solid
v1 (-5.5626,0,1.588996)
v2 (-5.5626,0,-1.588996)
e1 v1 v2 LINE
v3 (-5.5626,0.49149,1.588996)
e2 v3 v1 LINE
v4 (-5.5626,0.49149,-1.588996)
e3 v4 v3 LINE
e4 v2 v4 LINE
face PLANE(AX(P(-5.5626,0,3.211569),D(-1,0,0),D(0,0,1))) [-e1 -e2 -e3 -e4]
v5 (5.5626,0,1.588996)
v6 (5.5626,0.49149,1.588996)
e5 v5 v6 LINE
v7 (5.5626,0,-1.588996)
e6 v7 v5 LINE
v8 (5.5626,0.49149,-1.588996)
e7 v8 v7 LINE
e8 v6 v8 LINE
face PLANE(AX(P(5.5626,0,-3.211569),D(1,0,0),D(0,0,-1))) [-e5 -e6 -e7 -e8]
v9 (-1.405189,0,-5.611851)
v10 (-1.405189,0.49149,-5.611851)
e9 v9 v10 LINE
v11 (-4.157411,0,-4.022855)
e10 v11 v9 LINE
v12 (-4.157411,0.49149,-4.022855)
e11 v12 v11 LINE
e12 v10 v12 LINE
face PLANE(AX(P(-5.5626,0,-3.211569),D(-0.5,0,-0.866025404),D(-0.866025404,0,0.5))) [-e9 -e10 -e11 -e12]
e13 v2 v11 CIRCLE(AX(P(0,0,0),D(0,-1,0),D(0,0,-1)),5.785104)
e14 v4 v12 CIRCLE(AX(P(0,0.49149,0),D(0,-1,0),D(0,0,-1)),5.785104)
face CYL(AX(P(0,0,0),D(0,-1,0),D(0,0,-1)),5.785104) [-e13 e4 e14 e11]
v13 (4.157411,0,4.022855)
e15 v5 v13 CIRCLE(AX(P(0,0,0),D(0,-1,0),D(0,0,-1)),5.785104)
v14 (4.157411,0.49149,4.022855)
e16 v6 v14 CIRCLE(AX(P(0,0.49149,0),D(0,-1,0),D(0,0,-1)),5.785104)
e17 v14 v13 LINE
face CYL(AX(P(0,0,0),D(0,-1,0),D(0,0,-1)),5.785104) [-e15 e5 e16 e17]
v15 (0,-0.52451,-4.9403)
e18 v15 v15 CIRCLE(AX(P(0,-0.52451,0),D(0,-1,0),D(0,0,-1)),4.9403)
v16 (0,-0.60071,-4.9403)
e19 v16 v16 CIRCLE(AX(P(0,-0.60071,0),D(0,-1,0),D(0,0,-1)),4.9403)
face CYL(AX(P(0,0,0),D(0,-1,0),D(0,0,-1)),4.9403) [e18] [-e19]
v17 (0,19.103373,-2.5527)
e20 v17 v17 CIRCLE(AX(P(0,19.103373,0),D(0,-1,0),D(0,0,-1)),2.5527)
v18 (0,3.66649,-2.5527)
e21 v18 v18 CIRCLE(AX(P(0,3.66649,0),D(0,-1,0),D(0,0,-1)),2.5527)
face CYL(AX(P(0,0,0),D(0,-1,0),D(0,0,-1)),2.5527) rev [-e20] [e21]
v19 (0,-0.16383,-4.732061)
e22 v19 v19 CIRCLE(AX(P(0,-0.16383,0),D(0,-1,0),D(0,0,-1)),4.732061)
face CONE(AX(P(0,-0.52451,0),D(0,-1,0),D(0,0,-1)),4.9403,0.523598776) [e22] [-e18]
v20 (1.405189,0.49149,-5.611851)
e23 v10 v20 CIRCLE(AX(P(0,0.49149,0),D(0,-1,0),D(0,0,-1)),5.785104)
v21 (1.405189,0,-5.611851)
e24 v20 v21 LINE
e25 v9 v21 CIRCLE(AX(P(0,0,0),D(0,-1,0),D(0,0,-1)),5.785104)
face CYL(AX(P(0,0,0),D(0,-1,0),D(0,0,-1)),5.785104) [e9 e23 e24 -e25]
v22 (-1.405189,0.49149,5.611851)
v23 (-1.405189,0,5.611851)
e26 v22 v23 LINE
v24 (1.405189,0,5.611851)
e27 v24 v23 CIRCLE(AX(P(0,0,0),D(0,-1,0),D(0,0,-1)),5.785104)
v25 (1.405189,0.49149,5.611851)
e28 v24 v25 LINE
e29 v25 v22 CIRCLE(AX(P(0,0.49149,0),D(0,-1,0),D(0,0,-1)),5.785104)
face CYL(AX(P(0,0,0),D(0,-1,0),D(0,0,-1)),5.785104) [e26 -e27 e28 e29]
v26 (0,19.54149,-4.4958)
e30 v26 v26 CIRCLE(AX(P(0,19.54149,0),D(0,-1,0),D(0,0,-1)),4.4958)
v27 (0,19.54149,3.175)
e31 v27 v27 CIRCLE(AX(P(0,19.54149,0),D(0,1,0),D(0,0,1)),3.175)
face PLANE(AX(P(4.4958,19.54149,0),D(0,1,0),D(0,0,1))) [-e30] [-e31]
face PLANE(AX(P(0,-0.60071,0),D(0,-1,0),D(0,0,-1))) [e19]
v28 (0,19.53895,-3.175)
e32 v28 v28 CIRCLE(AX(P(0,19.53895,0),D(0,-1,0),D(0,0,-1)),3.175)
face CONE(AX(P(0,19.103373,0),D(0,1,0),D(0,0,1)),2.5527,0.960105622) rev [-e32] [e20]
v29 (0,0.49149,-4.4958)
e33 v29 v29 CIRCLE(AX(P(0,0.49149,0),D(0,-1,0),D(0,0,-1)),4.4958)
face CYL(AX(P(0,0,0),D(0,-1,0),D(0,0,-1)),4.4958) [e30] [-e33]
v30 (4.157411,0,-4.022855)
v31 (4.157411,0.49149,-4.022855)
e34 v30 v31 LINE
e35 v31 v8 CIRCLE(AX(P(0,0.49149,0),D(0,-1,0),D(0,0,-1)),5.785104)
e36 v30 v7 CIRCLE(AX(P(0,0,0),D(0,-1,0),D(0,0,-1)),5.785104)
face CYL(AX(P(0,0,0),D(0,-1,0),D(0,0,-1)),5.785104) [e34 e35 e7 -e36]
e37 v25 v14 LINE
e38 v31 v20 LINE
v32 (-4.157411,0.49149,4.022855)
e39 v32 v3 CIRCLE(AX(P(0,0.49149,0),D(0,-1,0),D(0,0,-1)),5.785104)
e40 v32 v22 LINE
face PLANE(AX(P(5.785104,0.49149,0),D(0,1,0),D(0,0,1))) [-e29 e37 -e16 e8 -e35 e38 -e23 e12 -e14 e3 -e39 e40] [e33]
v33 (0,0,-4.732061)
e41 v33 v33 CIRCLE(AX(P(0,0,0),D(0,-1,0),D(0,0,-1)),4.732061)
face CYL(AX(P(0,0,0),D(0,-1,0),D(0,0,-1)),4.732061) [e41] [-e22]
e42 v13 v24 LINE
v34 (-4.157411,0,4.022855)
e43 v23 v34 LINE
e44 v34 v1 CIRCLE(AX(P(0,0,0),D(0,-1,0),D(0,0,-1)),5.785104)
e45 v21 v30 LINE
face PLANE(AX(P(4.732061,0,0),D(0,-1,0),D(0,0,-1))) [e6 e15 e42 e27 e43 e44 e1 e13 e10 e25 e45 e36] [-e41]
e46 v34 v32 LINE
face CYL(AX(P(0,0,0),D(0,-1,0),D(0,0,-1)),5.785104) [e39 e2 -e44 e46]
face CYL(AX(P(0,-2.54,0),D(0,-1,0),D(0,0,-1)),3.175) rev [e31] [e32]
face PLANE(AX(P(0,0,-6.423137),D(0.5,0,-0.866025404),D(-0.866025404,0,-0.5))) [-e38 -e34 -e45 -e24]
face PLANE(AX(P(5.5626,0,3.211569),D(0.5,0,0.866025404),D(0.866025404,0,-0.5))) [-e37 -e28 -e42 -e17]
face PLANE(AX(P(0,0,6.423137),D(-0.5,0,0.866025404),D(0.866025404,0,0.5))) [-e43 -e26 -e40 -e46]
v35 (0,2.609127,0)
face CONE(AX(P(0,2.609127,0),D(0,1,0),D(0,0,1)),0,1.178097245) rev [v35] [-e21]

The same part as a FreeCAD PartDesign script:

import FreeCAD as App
import Part
import Sketcher

V = App.Vector
Q = App.Units.Quantity

doc = App.newDocument("Part")
params = doc.addObject("Spreadsheet::Sheet", "Params")
for row, (alias, value) in enumerate([
    ("sketch1_height", "0.75 in"),
    ("sketch1_height2", "0.375 in"),
    ("sketch1_height3", "0.418 in"),
    ("sketch1_height4", "0.003 in"),
    ("revolution_angle", "360 deg"),
    ("sketch2_height", "0.625 in"),
    ("groove_angle", "360 deg"),
    ("groove2_angle", "360 deg"),
    ("pocket1_length", "0.49149 mm"),
], start=1):
    params.set(f"A{row}", alias)
    params.set(f"B{row}", "=" + value)
    params.setAlias(f"B{row}", alias)

body = doc.addObject("PartDesign::Body", "Body")

sketch1 = body.newObject("Sketcher::SketchObject", "Sketch")
sketch1.AttachmentSupport = (doc.getObject("XY_Plane"), [""])
sketch1.MapMode = "FlatFace"
sketch1.addGeometry(Part.LineSegment(V(4.73, 0, 0), V(5.79, 0, 0)), False)
sketch1.addGeometry(Part.LineSegment(V(5.79, 0, 0), V(5.79, 0.49, 0)), False)
sketch1.addGeometry(Part.LineSegment(V(5.79, 0.49, 0), V(4.5, 0.49, 0)), False)
sketch1.addGeometry(Part.LineSegment(V(4.5, 0.49, 0), V(4.5, 19.54, 0)), False)
sketch1.addGeometry(Part.LineSegment(V(4.5, 19.54, 0), V(2.55, 19.54, 0)), False)
sketch1.addGeometry(Part.LineSegment(V(2.55, 19.54, 0), V(2.55, 10.02, 0)), False)
sketch1.addGeometry(Part.LineSegment(V(2.55, 10.02, 0), V(0, 10.02, 0)), False)
sketch1.addGeometry(Part.LineSegment(V(0, 10.02, 0), V(0, -0.6, 0)), False)
sketch1.addGeometry(Part.LineSegment(V(0, -0.6, 0), V(4.94, -0.6, 0)), False)
sketch1.addGeometry(Part.LineSegment(V(4.94, -0.6, 0), V(4.94, -0.52, 0)), False)
sketch1.addGeometry(Part.LineSegment(V(4.94, -0.52, 0), V(4.73, -0.16, 0)), False)
sketch1.addGeometry(Part.LineSegment(V(4.73, -0.16, 0), V(4.73, 0, 0)), False)
sketch1.addConstraint(Sketcher.Constraint("Coincident", 0, 2, 1, 1))
sketch1.addConstraint(Sketcher.Constraint("Coincident", 1, 2, 2, 1))
sketch1.addConstraint(Sketcher.Constraint("Coincident", 2, 2, 3, 1))
sketch1.addConstraint(Sketcher.Constraint("Coincident", 3, 2, 4, 1))
sketch1.addConstraint(Sketcher.Constraint("Coincident", 4, 2, 5, 1))
sketch1.addConstraint(Sketcher.Constraint("Coincident", 5, 2, 6, 1))
sketch1.addConstraint(Sketcher.Constraint("Coincident", 6, 2, 7, 1))
sketch1.addConstraint(Sketcher.Constraint("Coincident", 7, 2, 8, 1))
sketch1.addConstraint(Sketcher.Constraint("Coincident", 8, 2, 9, 1))
sketch1.addConstraint(Sketcher.Constraint("Coincident", 9, 2, 10, 1))
sketch1.addConstraint(Sketcher.Constraint("Coincident", 10, 2, 11, 1))
sketch1.addConstraint(Sketcher.Constraint("Coincident", 11, 2, 0, 1))
sketch1.addConstraint(Sketcher.Constraint("Horizontal", 0))
sketch1.addConstraint(Sketcher.Constraint("Vertical", 1))
sketch1.addConstraint(Sketcher.Constraint("Horizontal", 2))
sketch1.addConstraint(Sketcher.Constraint("Vertical", 3))
sketch1.addConstraint(Sketcher.Constraint("Horizontal", 4))
sketch1.addConstraint(Sketcher.Constraint("Vertical", 5))
sketch1.addConstraint(Sketcher.Constraint("Horizontal", 6))
sketch1.addConstraint(Sketcher.Constraint("Vertical", 7))
sketch1.addConstraint(Sketcher.Constraint("Horizontal", 8))
sketch1.addConstraint(Sketcher.Constraint("Vertical", 9))
sketch1.addConstraint(Sketcher.Constraint("Vertical", 11))
sketch1.addConstraint(Sketcher.Constraint("PointOnObject", 0, 2, -1))
sketch1.addConstraint(Sketcher.Constraint("PointOnObject", 6, 2, -2))
sketch1.addConstraint(Sketcher.Constraint("Angle", 10, Q("120 deg")))
sketch1.addConstraint(Sketcher.Constraint("DistanceY", 3, 1, 3, 2, Q("0.75 in")))
sketch1.addConstraint(Sketcher.Constraint("DistanceY", 5, 2, 5, 1, Q("0.375 in")))
sketch1.addConstraint(Sketcher.Constraint("DistanceY", 7, 2, 7, 1, Q("0.418 in")))
sketch1.addConstraint(Sketcher.Constraint("DistanceY", 9, 1, 9, 2, Q("0.003 in")))
sketch1.addConstraint(Sketcher.Constraint("DistanceX", 4, 2, 4, 1, Q("0.0765 in")))
sketch1.addConstraint(Sketcher.Constraint("DistanceX", 6, 2, 6, 1, Q("0.1005 in")))
sketch1.addConstraint(Sketcher.Constraint("DistanceX", 8, 1, 8, 2, Q("0.1945 in")))
sketch1.addConstraint(Sketcher.Constraint("DistanceY", 9, 2, 10, 2, Q("0.0142 in")))
sketch1.addConstraint(Sketcher.Constraint("DistanceY", 1, 1, 1, 2, 0.49149))
sketch1.addConstraint(Sketcher.Constraint("DistanceX", 0, 1, 0, 2, 1.053043))
sketch1.setExpression("Constraints[26]", "Params.sketch1_height")
sketch1.setExpression("Constraints[27]", "Params.sketch1_height2")
sketch1.setExpression("Constraints[28]", "Params.sketch1_height3")
sketch1.setExpression("Constraints[29]", "Params.sketch1_height4")
revolution = body.newObject("PartDesign::Revolution", "Revolution")
revolution.Profile = sketch1
revolution.ReferenceAxis = (sketch1, ["V_Axis"])
revolution.setExpression("Angle", "Params.revolution_angle")

sketch2 = body.newObject("Sketcher::SketchObject", "Sketch001")
sketch2.AttachmentSupport = (doc.getObject("XY_Plane"), [""])
sketch2.MapMode = "FlatFace"
sketch2.addGeometry(Part.LineSegment(V(2.6, 3.7, 0), V(2.6, 19.5, 0)), False)
sketch2.addGeometry(Part.LineSegment(V(2.6, 19.5, 0), V(0, 19.5, 0)), False)
sketch2.addGeometry(Part.LineSegment(V(0, 19.5, 0), V(0, 2.6, 0)), False)
sketch2.addGeometry(Part.LineSegment(V(0, 2.6, 0), V(2.6, 3.7, 0)), False)
sketch2.addConstraint(Sketcher.Constraint("Coincident", 0, 2, 1, 1))
sketch2.addConstraint(Sketcher.Constraint("Coincident", 1, 2, 2, 1))
sketch2.addConstraint(Sketcher.Constraint("Coincident", 2, 2, 3, 1))
sketch2.addConstraint(Sketcher.Constraint("Coincident", 3, 2, 0, 1))
sketch2.addConstraint(Sketcher.Constraint("Vertical", 0))
sketch2.addConstraint(Sketcher.Constraint("Horizontal", 1))
sketch2.addConstraint(Sketcher.Constraint("Vertical", 2))
sketch2.addConstraint(Sketcher.Constraint("PointOnObject", 1, 2, -2))
sketch2.addConstraint(Sketcher.Constraint("Angle", 3, Q("22.5 deg")))
sketch2.addConstraint(Sketcher.Constraint("DistanceY", 0, 1, 0, 2, Q("0.625 in")))
sketch2.addConstraint(Sketcher.Constraint("DistanceX", 1, 2, 1, 1, Q("0.1005 in")))
sketch2.addConstraint(Sketcher.Constraint("DistanceY", -1, 1, 0, 2, 19.54149))
sketch2.setExpression("Constraints[9]", "Params.sketch2_height")
groove = body.newObject("PartDesign::Groove", "Groove")
groove.Profile = sketch2
groove.ReferenceAxis = (sketch2, ["V_Axis"])
groove.setExpression("Angle", "Params.groove_angle")

sketch3 = body.newObject("Sketcher::SketchObject", "Sketch002")
sketch3.AttachmentSupport = (doc.getObject("XY_Plane"), [""])
sketch3.MapMode = "FlatFace"
sketch3.addGeometry(Part.LineSegment(V(2.55, 19.1, 0), V(3.17, 19.54, 0)), False)
sketch3.addGeometry(Part.LineSegment(V(3.17, 19.54, 0), V(3.17, 19.8, 0)), False)
sketch3.addGeometry(Part.LineSegment(V(3.17, 19.8, 0), V(2.55, 19.8, 0)), False)
sketch3.addGeometry(Part.LineSegment(V(2.55, 19.8, 0), V(2.55, 19.1, 0)), False)
sketch3.addConstraint(Sketcher.Constraint("Coincident", 0, 2, 1, 1))
sketch3.addConstraint(Sketcher.Constraint("Coincident", 1, 2, 2, 1))
sketch3.addConstraint(Sketcher.Constraint("Coincident", 2, 2, 3, 1))
sketch3.addConstraint(Sketcher.Constraint("Coincident", 3, 2, 0, 1))
sketch3.addConstraint(Sketcher.Constraint("Vertical", 1))
sketch3.addConstraint(Sketcher.Constraint("Horizontal", 2))
sketch3.addConstraint(Sketcher.Constraint("Vertical", 3))
sketch3.addConstraint(Sketcher.Constraint("Angle", 0, Q("34.99 deg")))
sketch3.addConstraint(Sketcher.Constraint("DistanceX", 2, 2, 2, 1, Q("0.0245 in")))
sketch3.addConstraint(Sketcher.Constraint("DistanceY", 1, 1, 1, 2, Q("0.0101 in")))
sketch3.addConstraint(Sketcher.Constraint("DistanceX", -1, 1, 0, 2, Q("0.125 in")))
sketch3.addConstraint(Sketcher.Constraint("DistanceY", -1, 1, 0, 2, 19.53895))
groove2 = body.newObject("PartDesign::Groove", "Groove001")
groove2.Profile = sketch3
groove2.ReferenceAxis = (sketch3, ["V_Axis"])
groove2.setExpression("Angle", "Params.groove2_angle")

sketch4 = body.newObject("Sketcher::SketchObject", "Sketch003")
sketch4.AttachmentSupport = (doc.getObject("XZ_Plane"), [""])
sketch4.MapMode = "FlatFace"
sketch4.AttachmentOffset = App.Placement(V(0, 0, -0.49149), App.Rotation())
sketch4.addGeometry(Part.Circle(V(0, 0, 0), V(0, 0, 1), 6), False)
sketch4.addGeometry(Part.LineSegment(V(6, 3, 0), V(0, 6, 0)), False)
sketch4.addGeometry(Part.LineSegment(V(0, 6, 0), V(-6, 3, 0)), False)
sketch4.addGeometry(Part.LineSegment(V(-6, 3, 0), V(-6, -3, 0)), False)
sketch4.addGeometry(Part.LineSegment(V(-6, -3, 0), V(0, -6, 0)), False)
sketch4.addGeometry(Part.LineSegment(V(0, -6, 0), V(6, -3, 0)), False)
sketch4.addGeometry(Part.LineSegment(V(6, -3, 0), V(6, 3, 0)), False)
sketch4.addConstraint(Sketcher.Constraint("Coincident", 1, 2, 2, 1))
sketch4.addConstraint(Sketcher.Constraint("Coincident", 2, 2, 3, 1))
sketch4.addConstraint(Sketcher.Constraint("Coincident", 3, 2, 4, 1))
sketch4.addConstraint(Sketcher.Constraint("Coincident", 4, 2, 5, 1))
sketch4.addConstraint(Sketcher.Constraint("Coincident", 5, 2, 6, 1))
sketch4.addConstraint(Sketcher.Constraint("Coincident", 6, 2, 1, 1))
sketch4.addConstraint(Sketcher.Constraint("Vertical", 3))
sketch4.addConstraint(Sketcher.Constraint("Vertical", 6))
sketch4.addConstraint(Sketcher.Constraint("Coincident", 0, 3, -1, 1))
sketch4.addConstraint(Sketcher.Constraint("Symmetric", 1, 2, 4, 2, -1, 1))
sketch4.addConstraint(Sketcher.Constraint("Symmetric", 2, 2, 5, 2, -1, 1))
sketch4.addConstraint(Sketcher.Constraint("PointOnObject", 1, 2, -2))
sketch4.addConstraint(Sketcher.Constraint("Parallel", 1, 4))
sketch4.addConstraint(Sketcher.Constraint("Horizontal", 3, 2, 5, 2))
sketch4.addConstraint(Sketcher.Constraint("Angle", 1, Q("150 deg")))
sketch4.addConstraint(Sketcher.Constraint("Diameter", 0, 12.930632))
sketch4.addConstraint(Sketcher.Constraint("DistanceX", 2, 2, -1, 1, Q("0.219 in")))
sketch4.addConstraint(Sketcher.Constraint("DistanceY", 3, 2, 3, 1, 6.423137))
pocket1 = body.newObject("PartDesign::Pocket", "Pocket")
pocket1.Profile = sketch4
pocket1.setExpression("Length", "Params.pocket1_length")
pocket1.Reversed = True

doc.recompute()
